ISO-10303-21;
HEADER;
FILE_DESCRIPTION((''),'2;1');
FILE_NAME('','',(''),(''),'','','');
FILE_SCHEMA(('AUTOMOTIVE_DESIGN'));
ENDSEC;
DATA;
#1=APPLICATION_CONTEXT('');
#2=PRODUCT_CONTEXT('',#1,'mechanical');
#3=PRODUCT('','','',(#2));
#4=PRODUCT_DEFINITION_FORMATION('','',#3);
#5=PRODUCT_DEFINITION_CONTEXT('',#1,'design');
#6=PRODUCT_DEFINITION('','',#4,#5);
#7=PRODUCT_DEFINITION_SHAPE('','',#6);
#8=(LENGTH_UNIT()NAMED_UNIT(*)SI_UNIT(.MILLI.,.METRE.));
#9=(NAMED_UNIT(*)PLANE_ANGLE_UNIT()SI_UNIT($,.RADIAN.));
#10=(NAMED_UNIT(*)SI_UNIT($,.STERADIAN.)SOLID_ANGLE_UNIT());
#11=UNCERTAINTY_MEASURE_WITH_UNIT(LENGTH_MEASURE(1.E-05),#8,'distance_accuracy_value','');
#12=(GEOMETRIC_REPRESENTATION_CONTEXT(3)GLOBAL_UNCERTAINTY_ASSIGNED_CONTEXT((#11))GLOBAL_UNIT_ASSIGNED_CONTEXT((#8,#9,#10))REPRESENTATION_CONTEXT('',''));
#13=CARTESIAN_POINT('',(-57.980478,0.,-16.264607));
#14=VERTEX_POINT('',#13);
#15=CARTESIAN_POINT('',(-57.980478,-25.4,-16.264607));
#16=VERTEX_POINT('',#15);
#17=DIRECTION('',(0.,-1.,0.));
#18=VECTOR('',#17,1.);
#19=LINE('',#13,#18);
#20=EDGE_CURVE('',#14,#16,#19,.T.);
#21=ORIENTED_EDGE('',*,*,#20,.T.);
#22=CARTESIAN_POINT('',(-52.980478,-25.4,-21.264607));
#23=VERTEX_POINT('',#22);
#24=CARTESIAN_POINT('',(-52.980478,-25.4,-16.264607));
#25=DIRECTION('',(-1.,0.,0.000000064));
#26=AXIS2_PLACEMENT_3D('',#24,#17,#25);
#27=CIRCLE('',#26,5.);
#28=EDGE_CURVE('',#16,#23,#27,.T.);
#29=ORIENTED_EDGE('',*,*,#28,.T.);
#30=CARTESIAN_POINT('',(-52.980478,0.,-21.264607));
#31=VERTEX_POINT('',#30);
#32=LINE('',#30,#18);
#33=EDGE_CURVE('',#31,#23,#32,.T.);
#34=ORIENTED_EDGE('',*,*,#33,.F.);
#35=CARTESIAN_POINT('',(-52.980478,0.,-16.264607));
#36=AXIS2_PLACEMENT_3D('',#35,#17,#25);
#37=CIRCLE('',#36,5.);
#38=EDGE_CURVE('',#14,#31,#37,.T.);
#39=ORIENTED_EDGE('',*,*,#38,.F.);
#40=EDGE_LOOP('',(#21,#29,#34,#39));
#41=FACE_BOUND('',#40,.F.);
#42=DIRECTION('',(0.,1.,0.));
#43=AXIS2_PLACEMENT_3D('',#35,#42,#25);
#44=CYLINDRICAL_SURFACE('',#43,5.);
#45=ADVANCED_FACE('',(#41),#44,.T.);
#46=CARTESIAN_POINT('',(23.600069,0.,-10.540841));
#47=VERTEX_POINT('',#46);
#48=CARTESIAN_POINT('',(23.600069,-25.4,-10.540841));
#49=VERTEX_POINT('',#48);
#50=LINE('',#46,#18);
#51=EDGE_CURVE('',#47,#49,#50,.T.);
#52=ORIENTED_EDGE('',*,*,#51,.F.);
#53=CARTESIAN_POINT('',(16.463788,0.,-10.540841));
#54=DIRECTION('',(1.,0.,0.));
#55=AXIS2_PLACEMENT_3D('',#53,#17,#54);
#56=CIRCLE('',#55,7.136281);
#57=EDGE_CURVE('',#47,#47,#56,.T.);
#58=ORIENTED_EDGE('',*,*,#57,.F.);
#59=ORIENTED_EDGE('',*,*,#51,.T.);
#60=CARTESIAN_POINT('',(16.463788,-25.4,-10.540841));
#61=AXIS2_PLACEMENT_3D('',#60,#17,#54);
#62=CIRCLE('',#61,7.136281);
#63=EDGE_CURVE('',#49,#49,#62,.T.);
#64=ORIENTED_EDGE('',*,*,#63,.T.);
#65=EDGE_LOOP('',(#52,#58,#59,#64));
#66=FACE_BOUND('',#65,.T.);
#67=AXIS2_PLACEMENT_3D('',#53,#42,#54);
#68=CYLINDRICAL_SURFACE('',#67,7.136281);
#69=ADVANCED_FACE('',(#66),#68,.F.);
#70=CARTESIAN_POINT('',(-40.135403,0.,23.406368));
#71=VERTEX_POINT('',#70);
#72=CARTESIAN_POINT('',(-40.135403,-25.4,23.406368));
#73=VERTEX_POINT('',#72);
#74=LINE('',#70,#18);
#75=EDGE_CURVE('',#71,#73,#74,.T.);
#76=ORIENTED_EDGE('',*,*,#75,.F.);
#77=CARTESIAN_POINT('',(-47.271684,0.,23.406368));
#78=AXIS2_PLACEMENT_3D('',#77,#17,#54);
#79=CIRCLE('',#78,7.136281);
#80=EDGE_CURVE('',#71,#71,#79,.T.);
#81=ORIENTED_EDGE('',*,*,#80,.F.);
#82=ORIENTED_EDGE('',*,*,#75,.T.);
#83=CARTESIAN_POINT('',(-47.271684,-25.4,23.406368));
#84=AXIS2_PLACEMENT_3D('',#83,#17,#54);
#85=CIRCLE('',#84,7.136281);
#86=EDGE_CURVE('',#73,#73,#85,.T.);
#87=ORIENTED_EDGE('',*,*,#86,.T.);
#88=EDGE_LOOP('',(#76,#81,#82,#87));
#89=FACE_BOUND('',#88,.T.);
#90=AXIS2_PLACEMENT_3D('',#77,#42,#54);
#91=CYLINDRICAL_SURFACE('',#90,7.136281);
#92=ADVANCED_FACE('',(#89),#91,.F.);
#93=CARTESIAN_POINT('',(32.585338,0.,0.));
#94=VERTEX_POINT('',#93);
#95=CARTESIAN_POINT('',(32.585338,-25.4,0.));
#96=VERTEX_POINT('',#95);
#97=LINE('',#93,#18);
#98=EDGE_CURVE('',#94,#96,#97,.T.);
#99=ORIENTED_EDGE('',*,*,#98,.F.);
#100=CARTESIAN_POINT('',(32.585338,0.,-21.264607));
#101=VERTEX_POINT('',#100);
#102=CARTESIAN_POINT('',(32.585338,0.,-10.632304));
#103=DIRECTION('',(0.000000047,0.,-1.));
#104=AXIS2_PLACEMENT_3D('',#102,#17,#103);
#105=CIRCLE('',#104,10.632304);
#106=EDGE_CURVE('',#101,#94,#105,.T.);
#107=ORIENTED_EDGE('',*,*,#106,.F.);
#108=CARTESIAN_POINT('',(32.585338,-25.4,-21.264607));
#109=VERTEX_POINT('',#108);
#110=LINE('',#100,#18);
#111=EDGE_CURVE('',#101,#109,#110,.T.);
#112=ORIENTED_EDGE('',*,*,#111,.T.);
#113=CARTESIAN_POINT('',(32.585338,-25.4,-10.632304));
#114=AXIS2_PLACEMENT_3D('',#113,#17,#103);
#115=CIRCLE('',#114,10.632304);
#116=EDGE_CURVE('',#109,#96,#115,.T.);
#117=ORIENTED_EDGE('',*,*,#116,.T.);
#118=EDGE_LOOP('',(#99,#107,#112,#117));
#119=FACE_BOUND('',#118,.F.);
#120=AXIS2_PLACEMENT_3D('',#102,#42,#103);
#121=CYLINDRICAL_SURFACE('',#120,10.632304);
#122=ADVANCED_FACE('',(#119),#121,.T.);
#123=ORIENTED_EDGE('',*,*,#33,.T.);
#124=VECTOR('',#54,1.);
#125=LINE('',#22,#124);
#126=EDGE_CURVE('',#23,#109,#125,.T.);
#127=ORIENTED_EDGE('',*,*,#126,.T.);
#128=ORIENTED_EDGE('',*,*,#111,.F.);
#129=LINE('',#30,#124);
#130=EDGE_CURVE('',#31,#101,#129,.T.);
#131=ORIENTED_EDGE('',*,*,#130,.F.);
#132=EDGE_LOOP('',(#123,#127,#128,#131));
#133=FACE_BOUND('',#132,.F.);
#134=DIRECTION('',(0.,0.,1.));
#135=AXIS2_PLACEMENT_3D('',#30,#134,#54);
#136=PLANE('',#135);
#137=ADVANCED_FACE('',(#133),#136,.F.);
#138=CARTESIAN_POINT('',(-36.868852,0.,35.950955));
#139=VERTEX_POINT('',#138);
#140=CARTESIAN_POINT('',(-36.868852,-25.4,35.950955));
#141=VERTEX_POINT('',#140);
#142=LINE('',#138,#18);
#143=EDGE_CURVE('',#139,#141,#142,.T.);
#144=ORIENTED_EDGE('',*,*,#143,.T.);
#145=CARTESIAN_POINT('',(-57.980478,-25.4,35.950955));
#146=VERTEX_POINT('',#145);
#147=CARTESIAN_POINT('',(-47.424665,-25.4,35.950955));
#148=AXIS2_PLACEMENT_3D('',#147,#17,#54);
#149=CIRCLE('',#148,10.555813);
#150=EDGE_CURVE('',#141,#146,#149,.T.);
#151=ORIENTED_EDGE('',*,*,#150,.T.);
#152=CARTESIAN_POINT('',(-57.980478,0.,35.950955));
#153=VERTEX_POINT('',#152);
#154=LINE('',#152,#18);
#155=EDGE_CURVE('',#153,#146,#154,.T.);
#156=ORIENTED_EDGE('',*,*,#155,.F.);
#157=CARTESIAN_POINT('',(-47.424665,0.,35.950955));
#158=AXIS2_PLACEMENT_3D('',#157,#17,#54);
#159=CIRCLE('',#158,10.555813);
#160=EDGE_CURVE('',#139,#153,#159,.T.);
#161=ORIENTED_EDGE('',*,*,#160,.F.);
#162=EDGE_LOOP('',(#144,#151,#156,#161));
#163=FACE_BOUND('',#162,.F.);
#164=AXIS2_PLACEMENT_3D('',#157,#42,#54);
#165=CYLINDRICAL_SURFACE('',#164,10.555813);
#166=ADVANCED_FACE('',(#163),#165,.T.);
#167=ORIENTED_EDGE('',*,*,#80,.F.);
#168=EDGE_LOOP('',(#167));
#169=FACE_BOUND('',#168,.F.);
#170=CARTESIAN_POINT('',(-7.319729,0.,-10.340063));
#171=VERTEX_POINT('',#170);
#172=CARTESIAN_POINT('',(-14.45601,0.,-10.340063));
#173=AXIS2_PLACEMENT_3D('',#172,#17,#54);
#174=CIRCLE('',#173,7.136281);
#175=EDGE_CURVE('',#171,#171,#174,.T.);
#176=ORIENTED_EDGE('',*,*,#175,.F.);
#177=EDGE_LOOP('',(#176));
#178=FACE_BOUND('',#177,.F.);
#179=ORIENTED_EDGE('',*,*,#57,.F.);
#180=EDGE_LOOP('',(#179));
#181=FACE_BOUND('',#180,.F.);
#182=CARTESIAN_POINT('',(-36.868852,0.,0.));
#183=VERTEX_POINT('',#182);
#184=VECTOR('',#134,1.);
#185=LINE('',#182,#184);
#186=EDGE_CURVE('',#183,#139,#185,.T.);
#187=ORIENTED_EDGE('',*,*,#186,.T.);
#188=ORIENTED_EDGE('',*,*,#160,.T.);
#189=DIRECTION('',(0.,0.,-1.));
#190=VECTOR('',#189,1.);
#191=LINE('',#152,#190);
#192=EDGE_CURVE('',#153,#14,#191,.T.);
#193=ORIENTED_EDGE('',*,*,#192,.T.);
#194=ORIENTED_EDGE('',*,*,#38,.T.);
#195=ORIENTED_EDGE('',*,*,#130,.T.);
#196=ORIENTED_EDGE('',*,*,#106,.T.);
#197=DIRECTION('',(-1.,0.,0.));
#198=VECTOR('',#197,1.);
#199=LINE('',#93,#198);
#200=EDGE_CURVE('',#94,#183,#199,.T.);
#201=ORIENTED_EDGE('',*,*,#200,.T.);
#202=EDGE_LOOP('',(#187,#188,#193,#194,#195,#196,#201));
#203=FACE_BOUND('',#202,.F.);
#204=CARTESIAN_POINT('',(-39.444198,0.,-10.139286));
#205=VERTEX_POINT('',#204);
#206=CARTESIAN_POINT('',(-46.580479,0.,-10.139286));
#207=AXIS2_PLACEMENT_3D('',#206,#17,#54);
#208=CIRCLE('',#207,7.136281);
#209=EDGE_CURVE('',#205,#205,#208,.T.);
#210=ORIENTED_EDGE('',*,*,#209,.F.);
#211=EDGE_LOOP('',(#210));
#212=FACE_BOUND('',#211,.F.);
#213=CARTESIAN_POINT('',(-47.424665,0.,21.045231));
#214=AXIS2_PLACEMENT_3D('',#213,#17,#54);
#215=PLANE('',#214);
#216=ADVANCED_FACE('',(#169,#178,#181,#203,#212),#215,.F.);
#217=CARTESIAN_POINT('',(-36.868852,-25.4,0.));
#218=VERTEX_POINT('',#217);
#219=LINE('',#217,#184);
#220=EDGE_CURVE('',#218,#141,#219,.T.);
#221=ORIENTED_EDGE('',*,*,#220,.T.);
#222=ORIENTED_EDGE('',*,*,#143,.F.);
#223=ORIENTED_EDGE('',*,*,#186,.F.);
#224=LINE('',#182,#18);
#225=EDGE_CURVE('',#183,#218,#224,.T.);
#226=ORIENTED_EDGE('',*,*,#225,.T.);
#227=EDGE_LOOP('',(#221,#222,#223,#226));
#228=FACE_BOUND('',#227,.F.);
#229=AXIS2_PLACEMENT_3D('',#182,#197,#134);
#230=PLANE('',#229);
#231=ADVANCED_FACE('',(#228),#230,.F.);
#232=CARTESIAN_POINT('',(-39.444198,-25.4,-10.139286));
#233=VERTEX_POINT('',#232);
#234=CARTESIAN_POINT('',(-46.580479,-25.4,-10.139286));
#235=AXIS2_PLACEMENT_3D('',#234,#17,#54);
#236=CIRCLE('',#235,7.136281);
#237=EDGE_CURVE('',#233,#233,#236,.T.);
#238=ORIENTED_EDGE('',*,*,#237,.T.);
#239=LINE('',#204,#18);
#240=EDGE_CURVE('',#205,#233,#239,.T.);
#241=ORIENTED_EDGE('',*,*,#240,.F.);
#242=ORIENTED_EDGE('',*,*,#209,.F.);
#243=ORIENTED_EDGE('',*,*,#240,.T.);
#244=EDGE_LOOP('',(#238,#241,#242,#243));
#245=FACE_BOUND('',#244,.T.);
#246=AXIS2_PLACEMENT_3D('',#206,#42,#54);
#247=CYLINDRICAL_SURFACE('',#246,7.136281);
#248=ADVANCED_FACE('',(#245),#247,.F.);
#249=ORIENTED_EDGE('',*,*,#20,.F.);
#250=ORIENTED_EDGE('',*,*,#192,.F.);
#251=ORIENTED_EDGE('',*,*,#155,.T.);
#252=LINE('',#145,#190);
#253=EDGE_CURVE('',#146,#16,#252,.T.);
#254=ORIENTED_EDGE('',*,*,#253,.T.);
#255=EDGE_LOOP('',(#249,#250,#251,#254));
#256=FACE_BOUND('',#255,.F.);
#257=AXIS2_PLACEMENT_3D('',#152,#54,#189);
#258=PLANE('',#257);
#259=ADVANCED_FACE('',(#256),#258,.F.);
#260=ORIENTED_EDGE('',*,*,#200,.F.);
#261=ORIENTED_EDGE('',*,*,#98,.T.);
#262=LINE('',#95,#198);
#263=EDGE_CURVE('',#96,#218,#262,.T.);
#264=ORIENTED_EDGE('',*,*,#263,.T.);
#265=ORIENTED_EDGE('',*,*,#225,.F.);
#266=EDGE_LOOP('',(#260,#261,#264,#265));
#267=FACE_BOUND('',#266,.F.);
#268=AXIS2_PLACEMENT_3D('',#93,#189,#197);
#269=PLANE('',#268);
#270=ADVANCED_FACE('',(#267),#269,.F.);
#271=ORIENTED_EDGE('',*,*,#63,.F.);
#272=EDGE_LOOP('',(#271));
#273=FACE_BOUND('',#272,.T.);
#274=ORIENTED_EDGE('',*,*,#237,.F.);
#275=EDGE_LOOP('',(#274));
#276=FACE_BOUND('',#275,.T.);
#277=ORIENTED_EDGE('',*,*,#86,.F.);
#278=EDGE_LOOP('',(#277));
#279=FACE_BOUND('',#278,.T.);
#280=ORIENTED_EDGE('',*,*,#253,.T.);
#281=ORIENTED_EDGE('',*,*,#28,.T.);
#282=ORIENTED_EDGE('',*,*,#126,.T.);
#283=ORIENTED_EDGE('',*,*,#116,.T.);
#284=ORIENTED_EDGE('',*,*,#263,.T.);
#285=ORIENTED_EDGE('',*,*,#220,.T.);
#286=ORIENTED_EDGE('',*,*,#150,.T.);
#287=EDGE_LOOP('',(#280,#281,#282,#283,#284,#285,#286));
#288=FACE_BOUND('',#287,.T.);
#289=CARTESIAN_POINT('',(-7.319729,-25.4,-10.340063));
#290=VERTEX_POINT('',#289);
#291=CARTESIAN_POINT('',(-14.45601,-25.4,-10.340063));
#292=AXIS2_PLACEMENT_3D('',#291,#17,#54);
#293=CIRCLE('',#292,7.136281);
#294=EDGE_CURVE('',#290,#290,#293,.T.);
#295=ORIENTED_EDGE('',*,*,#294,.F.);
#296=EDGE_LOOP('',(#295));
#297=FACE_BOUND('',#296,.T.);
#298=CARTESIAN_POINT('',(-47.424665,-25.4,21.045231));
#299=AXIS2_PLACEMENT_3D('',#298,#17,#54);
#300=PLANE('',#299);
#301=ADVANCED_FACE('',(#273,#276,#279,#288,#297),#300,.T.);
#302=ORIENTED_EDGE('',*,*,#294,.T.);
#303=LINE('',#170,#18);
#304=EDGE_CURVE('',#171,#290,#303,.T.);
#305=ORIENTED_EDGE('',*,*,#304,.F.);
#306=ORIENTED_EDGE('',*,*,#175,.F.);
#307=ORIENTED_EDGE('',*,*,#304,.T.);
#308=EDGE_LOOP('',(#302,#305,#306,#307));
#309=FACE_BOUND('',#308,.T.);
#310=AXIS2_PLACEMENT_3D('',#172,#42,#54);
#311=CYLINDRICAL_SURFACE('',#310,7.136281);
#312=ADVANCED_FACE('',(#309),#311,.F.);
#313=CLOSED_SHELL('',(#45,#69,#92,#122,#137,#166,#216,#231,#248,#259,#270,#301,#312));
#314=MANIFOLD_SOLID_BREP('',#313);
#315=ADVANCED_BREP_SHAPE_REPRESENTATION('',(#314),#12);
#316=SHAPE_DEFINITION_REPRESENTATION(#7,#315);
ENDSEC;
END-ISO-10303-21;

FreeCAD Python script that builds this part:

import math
import FreeCAD as App
import Part
import Sketcher
Q = App.Units.Quantity

doc = App.newDocument("Part")
body = doc.addObject("PartDesign::Body", "Body")

# Sketch on XZ plane
sketch1 = doc.addObject("Sketcher::SketchObject", "Sketch")
body.addObject(sketch1)
sketch1.AttachmentSupport = (doc.XZ_Plane, [""])
sketch1.MapMode = "FlatFace"
sketch1.addGeometry([
    Part.LineSegment(App.Vector(-58, 36, 0), App.Vector(-58, -16.3, 0)),  # 0
    Part.ArcOfCircle(Part.Circle(App.Vector(-53, -16.3, 0), App.Vector(0, 0, 1), 5), math.radians(180), math.radians(270)),  # 1
    Part.LineSegment(App.Vector(-53, -21.3, 0), App.Vector(32.6, -21.3, 0)),  # 2
    Part.ArcOfCircle(Part.Circle(App.Vector(32.6, -10.6, 0), App.Vector(0, 0, 1), 10.6), math.radians(-90), math.radians(90)),  # 3
    Part.LineSegment(App.Vector(32.6, 0, 0), App.Vector(-36.9, 0, 0)),  # 4
    Part.LineSegment(App.Vector(-36.9, 0, 0), App.Vector(-36.9, 36, 0)),  # 5
    Part.ArcOfCircle(Part.Circle(App.Vector(-47.4, 36, 0), App.Vector(0, 0, 1), 10.6), math.radians(0), math.radians(180)),  # 6
    Part.Circle(App.Vector(-46.6, -10.1, 0), App.Vector(0, 0, 1), 7.1),  # 7
    Part.Circle(App.Vector(-14.5, -10.3, 0), App.Vector(0, 0, 1), 7.1),  # 8
    Part.Circle(App.Vector(16.5, -10.5, 0), App.Vector(0, 0, 1), 7.1),  # 9
    Part.Circle(App.Vector(-47.3, 23.4, 0), App.Vector(0, 0, 1), 7.1),  # 10
], False)
sketch1.addConstraint([
    Sketcher.Constraint("Tangent", 0, 2, 1, 1),
    Sketcher.Constraint("Tangent", 1, 2, 2, 1),
    Sketcher.Constraint("Tangent", 2, 2, 3, 1),
    Sketcher.Constraint("Tangent", 3, 2, 4, 1),
    Sketcher.Constraint("Coincident", 4, 2, 5, 1),
    Sketcher.Constraint("Tangent", 5, 2, 6, 1),
    Sketcher.Constraint("Tangent", 6, 2, 0, 1),
    Sketcher.Constraint("Vertical", 0),
    Sketcher.Constraint("Horizontal", 2),
    Sketcher.Constraint("Horizontal", 4),
    Sketcher.Constraint("Vertical", 5),
    Sketcher.Constraint("Equal", 7, 8),
    Sketcher.Constraint("Equal", 8, 9),
    Sketcher.Constraint("Equal", 9, 10),
    Sketcher.Constraint("PointOnObject", 3, 2, -1),
    Sketcher.Constraint("Radius", 1, Q("5 mm")),
    Sketcher.Constraint("DistanceX", 1, 3, 7, 3, Q("6.399999 mm")),
    Sketcher.Constraint("Diameter", 7, Q("14.272562 mm")),
    Sketcher.Constraint("Radius", 3, Q("10.632304 mm")),
    Sketcher.Constraint("Radius", 6, Q("10.555813 mm")),
    Sketcher.Constraint("DistanceX", 4, 2, 4, 1, Q("69.45419 mm")),
    Sketcher.Constraint("DistanceX", 8, 3, 9, 3, Q("30.919798 mm")),
    Sketcher.Constraint("DistanceY", 0, 2, 0, 1, Q("52.215562 mm")),
    Sketcher.Constraint("DistanceX", 1, 3, -1, 1, Q("52.980478 mm")),
    Sketcher.Constraint("DistanceX", 8, 3, -1, 1, Q("14.45601 mm")),
    Sketcher.Constraint("DistanceY", 9, 3, -1, 1, Q("10.540841 mm")),
    Sketcher.Constraint("DistanceY", -1, 1, 10, 3, Q("23.406368 mm")),
    Sketcher.Constraint("DistanceY", 1, 3, 7, 3, Q("6.125321 mm")),
    Sketcher.Constraint("DistanceY", 3, 3, 8, 3, Q("0.292241 mm")),
    Sketcher.Constraint("DistanceX", 6, 3, 10, 3, Q("0.152981 mm")),
])
pad1 = doc.addObject("PartDesign::Pad", "Pad")
body.addObject(pad1)
pad1.Profile = sketch1
pad1.Length = 25.4

doc.recompute()
